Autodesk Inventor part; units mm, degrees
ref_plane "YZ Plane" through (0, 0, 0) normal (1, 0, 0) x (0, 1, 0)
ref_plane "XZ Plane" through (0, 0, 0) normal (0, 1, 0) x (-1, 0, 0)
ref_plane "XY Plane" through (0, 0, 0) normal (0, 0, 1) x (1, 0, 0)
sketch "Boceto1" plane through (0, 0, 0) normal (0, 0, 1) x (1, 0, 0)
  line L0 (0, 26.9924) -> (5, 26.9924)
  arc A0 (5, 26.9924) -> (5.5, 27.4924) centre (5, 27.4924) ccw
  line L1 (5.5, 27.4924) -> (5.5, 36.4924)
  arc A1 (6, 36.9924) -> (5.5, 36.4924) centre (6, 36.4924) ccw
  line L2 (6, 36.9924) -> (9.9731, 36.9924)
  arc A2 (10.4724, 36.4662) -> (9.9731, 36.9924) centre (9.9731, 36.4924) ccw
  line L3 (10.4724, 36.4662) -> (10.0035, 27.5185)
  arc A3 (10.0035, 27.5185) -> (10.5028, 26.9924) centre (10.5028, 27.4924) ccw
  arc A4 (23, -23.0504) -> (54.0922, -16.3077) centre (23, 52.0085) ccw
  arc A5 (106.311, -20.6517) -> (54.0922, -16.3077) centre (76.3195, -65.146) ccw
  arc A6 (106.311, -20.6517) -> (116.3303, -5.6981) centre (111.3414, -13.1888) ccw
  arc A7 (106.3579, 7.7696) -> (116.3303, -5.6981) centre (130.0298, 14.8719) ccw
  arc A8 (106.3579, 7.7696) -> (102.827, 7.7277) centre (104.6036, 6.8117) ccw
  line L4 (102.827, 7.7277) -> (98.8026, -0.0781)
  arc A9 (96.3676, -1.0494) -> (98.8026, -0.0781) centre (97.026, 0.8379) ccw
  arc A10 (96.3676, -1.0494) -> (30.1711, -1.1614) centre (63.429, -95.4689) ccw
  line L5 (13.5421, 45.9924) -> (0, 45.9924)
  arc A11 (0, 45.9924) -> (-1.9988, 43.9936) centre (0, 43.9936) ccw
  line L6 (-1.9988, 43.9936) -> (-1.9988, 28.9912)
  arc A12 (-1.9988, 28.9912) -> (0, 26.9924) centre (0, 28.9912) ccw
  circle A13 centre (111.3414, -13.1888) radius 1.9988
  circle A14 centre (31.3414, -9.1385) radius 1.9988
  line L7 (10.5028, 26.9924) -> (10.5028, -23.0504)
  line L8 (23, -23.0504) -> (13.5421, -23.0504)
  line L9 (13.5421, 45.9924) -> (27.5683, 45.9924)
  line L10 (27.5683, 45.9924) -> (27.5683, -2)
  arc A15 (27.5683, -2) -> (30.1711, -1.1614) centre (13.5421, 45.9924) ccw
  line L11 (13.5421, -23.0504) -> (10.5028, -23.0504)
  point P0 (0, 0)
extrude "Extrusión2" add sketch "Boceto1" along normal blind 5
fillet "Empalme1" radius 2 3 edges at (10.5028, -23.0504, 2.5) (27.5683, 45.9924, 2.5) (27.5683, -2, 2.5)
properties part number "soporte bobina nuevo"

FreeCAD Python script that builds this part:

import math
import FreeCAD as App
import Part
import Sketcher

V = App.Vector
Q = App.Units.Quantity


def edges_at(feature, points):
    """Names of the edges that pass closest to the given points."""
    edges = feature.Shape.Edges
    near = lambda p: min(range(len(edges)), key=lambda i: edges[i].distToShape(Part.Vertex(*p))[0])
    return sorted({f"Edge{near(p) + 1}" for p in points})

doc = App.newDocument("Part")
body = doc.addObject("PartDesign::Body", "Body")

sketch1 = body.newObject("Sketcher::SketchObject", "Sketch")
sketch1.AttachmentSupport = (doc.getObject("XY_Plane"), [""])
sketch1.MapMode = "FlatFace"
sketch1.addGeometry([
    Part.ArcOfCircle(Part.Circle(V(0, 28.99, 0), V(0, 0, 1), 2), math.radians(180), math.radians(270)),
    Part.LineSegment(V(0, 26.99, 0), V(5, 26.99, 0)),
    Part.ArcOfCircle(Part.Circle(V(5, 27.49, 0), V(0, 0, 1), 0.5), math.radians(-90), math.radians(0)),
    Part.LineSegment(V(5.5, 27.49, 0), V(5.5, 36.49, 0)),
    Part.ArcOfCircle(Part.Circle(V(6, 36.49, 0), V(0, 0, 1), 0.5), math.radians(90), math.radians(180)),
    Part.LineSegment(V(6, 36.99, 0), V(9.97, 36.99, 0)),
    Part.ArcOfCircle(Part.Circle(V(9.97, 36.49, 0), V(0, 0, 1), 0.5), math.radians(-3), math.radians(90)),
    Part.LineSegment(V(10.47, 36.47, 0), V(10, 27.52, 0)),
    Part.ArcOfCircle(Part.Circle(V(10.5, 27.49, 0), V(0, 0, 1), 0.5), math.radians(177), math.radians(270)),
    Part.LineSegment(V(10.5, 26.99, 0), V(10.5, -23.05, 0)),
    Part.LineSegment(V(10.5, -23.05, 0), V(23, -23.05, 0)),
    Part.ArcOfCircle(Part.Circle(V(23, 52.01, 0), V(0, 0, 1), 75.06), math.radians(-90), math.radians(-66)),
    Part.ArcOfCircle(Part.Circle(V(76.32, -65.15, 0), V(0, 0, 1), 53.66), math.radians(56), math.radians(114)),
    Part.ArcOfCircle(Part.Circle(V(111.34, -13.19, 0), V(0, 0, 1), 9), math.radians(-124), math.radians(56)),
    Part.ArcOfCircle(Part.Circle(V(130.03, 14.87, 0), V(0, 0, 1), 24.71), math.radians(-163), math.radians(-124)),
    Part.ArcOfCircle(Part.Circle(V(104.6, 6.81, 0), V(0, 0, 1), 2), math.radians(29), math.radians(153)),
    Part.LineSegment(V(102.83, 7.73, 0), V(98.8, -0.08, 0)),
    Part.ArcOfCircle(Part.Circle(V(97.03, 0.84, 0), V(0, 0, 1), 2), math.radians(-109), math.radians(-27)),
    Part.ArcOfCircle(Part.Circle(V(63.43, -95.47, 0), V(0, 0, 1), 100), math.radians(71), math.radians(109)),
    Part.ArcOfCircle(Part.Circle(V(13.54, 45.99, 0), V(0, 0, 1), 50), math.radians(-73.71), math.radians(-70.57)),
    Part.LineSegment(V(27.57, -2, 0), V(27.57, 45.99, 0)),
    Part.LineSegment(V(27.57, 45.99, 0), V(0, 45.99, 0)),
    Part.ArcOfCircle(Part.Circle(V(0, 43.99, 0), V(0, 0, 1), 2), math.radians(90), math.radians(180)),
    Part.LineSegment(V(-2, 43.99, 0), V(-2, 28.99, 0)),
    Part.Circle(V(31.34, -9.14, 0), V(0, 0, 1), 2),
    Part.Circle(V(111.34, -13.19, 0), V(0, 0, 1), 2),
], False)
sketch1.addConstraint([
    Sketcher.Constraint("Tangent", 0, 2, 1, 1),
    Sketcher.Constraint("Tangent", 1, 2, 2, 1),
    Sketcher.Constraint("Tangent", 2, 2, 3, 1),
    Sketcher.Constraint("Tangent", 3, 2, 4, 2),
    Sketcher.Constraint("Tangent", 4, 1, 5, 1),
    Sketcher.Constraint("Tangent", 5, 2, 6, 2),
    Sketcher.Constraint("Tangent", 6, 1, 7, 1),
    Sketcher.Constraint("Tangent", 7, 2, 8, 1),
    Sketcher.Constraint("Coincident", 8, 2, 9, 1),
    Sketcher.Constraint("Coincident", 9, 2, 10, 1),
    Sketcher.Constraint("Tangent", 10, 2, 11, 1),
    Sketcher.Constraint("Tangent", 11, 2, 12, 2),
    Sketcher.Constraint("Tangent", 12, 1, 13, 1),
    Sketcher.Constraint("Tangent", 13, 2, 14, 2),
    Sketcher.Constraint("Coincident", 14, 1, 15, 1),
    Sketcher.Constraint("Tangent", 15, 2, 16, 1),
    Sketcher.Constraint("Tangent", 16, 2, 17, 2),
    Sketcher.Constraint("Tangent", 17, 1, 18, 1),
    Sketcher.Constraint("Tangent", 18, 2, 19, 2),
    Sketcher.Constraint("Coincident", 19, 1, 20, 1),
    Sketcher.Constraint("Coincident", 20, 2, 21, 1),
    Sketcher.Constraint("Tangent", 21, 2, 22, 1),
    Sketcher.Constraint("Tangent", 22, 2, 23, 1),
    Sketcher.Constraint("Tangent", 23, 2, 0, 1),
    Sketcher.Constraint("Horizontal", 1),
    Sketcher.Constraint("Vertical", 3),
    Sketcher.Constraint("Horizontal", 5),
    Sketcher.Constraint("Vertical", 9),
    Sketcher.Constraint("Horizontal", 10),
    Sketcher.Constraint("Vertical", 20),
    Sketcher.Constraint("Horizontal", 21),
    Sketcher.Constraint("Vertical", 23),
    Sketcher.Constraint("Coincident", 25, 3, 13, 3),
    Sketcher.Constraint("Equal", 2, 4),
    Sketcher.Constraint("Equal", 4, 6),
    Sketcher.Constraint("Equal", 6, 8),
    Sketcher.Constraint("Equal", 0, 15),
    Sketcher.Constraint("Equal", 15, 17),
    Sketcher.Constraint("Equal", 17, 22),
    Sketcher.Constraint("Equal", 22, 24),
    Sketcher.Constraint("Equal", 24, 25),
    Sketcher.Constraint("PointOnObject", 0, 3, -2),
    Sketcher.Constraint("Horizontal", 2, 3, 8, 3),
    Sketcher.Constraint("Radius", 13, Q("9 mm")),
    Sketcher.Constraint("Radius", 18, Q("100 mm")),
    Sketcher.Constraint("Radius", 2, Q("0.5 mm")),
    Sketcher.Constraint("DistanceX", 1, 1, 1, 2, Q("5 mm")),
    Sketcher.Constraint("DistanceY", 3, 1, 3, 2, Q("9 mm")),
    Sketcher.Constraint("Angle", 7, Q("-92.9998 deg")),
    Sketcher.Constraint("DistanceX", -1, 1, 10, 2, Q("23 mm")),
    Sketcher.Constraint("DistanceY", 19, 1, -1, 1, Q("2 mm")),
    Sketcher.Constraint("DistanceY", 5, 2, 20, 2, Q("9 mm")),
    Sketcher.Constraint("Diameter", 24, Q("3.9976 mm")),
    Sketcher.Constraint("Radius", 11, Q("75.0574 mm")),
    Sketcher.Constraint("Radius", 12, Q("53.6585 mm")),
    Sketcher.Constraint("Radius", 14, Q("24.7144 mm")),
    Sketcher.Constraint("Radius", 19, Q("49.9967 mm")),
    Sketcher.Constraint("DistanceX", 5, 1, 5, 2, Q("3.973 mm")),
    Sketcher.Constraint("DistanceY", 18, 3, 13, 3, Q("82.28 mm")),
    Sketcher.Constraint("DistanceX", 6, 3, 19, 3, Q("3.57 mm")),
    Sketcher.Constraint("DistanceX", 10, 1, 10, 2, Q("12.4972 mm")),
    Sketcher.Constraint("DistanceX", 21, 2, 21, 1, Q("27.5683 mm")),
    Sketcher.Constraint("DistanceY", 9, 2, 9, 1, Q("50.0428 mm")),
    Sketcher.Constraint("DistanceY", 20, 1, 20, 2, Q("47.9924 mm")),
    Sketcher.Constraint("DistanceY", 12, 3, -1, 1, Q("65.146 mm")),
    Sketcher.Constraint("DistanceY", -1, 1, 14, 3, Q("14.872 mm")),
    Sketcher.Constraint("DistanceX", -1, 1, 17, 3, Q("97.026 mm")),
    Sketcher.Constraint("DistanceY", -1, 1, 17, 3, Q("0.838 mm")),
    Sketcher.Constraint("DistanceX", -1, 1, 14, 1, Q("106.358 mm")),
    Sketcher.Constraint("DistanceX", -1, 1, 15, 2, Q("102.827 mm")),
    Sketcher.Constraint("DistanceY", 24, 3, 8, 3, Q("36.631 mm")),
    Sketcher.Constraint("DistanceX", 19, 1, 24, 3, Q("3.773 mm")),
])
pad1 = body.newObject("PartDesign::Pad", "Pad")
pad1.Profile = sketch1
pad1.Length = 5
doc.recompute()

fillet = body.newObject("PartDesign::Fillet", "Fillet")
fillet.Base = (pad1, edges_at(pad1, [(10.503, -23.05, 2.5), (27.568, 45.992, 2.5), (27.568, -2, 2.5)]))
fillet.Radius = 2

doc.recompute()
